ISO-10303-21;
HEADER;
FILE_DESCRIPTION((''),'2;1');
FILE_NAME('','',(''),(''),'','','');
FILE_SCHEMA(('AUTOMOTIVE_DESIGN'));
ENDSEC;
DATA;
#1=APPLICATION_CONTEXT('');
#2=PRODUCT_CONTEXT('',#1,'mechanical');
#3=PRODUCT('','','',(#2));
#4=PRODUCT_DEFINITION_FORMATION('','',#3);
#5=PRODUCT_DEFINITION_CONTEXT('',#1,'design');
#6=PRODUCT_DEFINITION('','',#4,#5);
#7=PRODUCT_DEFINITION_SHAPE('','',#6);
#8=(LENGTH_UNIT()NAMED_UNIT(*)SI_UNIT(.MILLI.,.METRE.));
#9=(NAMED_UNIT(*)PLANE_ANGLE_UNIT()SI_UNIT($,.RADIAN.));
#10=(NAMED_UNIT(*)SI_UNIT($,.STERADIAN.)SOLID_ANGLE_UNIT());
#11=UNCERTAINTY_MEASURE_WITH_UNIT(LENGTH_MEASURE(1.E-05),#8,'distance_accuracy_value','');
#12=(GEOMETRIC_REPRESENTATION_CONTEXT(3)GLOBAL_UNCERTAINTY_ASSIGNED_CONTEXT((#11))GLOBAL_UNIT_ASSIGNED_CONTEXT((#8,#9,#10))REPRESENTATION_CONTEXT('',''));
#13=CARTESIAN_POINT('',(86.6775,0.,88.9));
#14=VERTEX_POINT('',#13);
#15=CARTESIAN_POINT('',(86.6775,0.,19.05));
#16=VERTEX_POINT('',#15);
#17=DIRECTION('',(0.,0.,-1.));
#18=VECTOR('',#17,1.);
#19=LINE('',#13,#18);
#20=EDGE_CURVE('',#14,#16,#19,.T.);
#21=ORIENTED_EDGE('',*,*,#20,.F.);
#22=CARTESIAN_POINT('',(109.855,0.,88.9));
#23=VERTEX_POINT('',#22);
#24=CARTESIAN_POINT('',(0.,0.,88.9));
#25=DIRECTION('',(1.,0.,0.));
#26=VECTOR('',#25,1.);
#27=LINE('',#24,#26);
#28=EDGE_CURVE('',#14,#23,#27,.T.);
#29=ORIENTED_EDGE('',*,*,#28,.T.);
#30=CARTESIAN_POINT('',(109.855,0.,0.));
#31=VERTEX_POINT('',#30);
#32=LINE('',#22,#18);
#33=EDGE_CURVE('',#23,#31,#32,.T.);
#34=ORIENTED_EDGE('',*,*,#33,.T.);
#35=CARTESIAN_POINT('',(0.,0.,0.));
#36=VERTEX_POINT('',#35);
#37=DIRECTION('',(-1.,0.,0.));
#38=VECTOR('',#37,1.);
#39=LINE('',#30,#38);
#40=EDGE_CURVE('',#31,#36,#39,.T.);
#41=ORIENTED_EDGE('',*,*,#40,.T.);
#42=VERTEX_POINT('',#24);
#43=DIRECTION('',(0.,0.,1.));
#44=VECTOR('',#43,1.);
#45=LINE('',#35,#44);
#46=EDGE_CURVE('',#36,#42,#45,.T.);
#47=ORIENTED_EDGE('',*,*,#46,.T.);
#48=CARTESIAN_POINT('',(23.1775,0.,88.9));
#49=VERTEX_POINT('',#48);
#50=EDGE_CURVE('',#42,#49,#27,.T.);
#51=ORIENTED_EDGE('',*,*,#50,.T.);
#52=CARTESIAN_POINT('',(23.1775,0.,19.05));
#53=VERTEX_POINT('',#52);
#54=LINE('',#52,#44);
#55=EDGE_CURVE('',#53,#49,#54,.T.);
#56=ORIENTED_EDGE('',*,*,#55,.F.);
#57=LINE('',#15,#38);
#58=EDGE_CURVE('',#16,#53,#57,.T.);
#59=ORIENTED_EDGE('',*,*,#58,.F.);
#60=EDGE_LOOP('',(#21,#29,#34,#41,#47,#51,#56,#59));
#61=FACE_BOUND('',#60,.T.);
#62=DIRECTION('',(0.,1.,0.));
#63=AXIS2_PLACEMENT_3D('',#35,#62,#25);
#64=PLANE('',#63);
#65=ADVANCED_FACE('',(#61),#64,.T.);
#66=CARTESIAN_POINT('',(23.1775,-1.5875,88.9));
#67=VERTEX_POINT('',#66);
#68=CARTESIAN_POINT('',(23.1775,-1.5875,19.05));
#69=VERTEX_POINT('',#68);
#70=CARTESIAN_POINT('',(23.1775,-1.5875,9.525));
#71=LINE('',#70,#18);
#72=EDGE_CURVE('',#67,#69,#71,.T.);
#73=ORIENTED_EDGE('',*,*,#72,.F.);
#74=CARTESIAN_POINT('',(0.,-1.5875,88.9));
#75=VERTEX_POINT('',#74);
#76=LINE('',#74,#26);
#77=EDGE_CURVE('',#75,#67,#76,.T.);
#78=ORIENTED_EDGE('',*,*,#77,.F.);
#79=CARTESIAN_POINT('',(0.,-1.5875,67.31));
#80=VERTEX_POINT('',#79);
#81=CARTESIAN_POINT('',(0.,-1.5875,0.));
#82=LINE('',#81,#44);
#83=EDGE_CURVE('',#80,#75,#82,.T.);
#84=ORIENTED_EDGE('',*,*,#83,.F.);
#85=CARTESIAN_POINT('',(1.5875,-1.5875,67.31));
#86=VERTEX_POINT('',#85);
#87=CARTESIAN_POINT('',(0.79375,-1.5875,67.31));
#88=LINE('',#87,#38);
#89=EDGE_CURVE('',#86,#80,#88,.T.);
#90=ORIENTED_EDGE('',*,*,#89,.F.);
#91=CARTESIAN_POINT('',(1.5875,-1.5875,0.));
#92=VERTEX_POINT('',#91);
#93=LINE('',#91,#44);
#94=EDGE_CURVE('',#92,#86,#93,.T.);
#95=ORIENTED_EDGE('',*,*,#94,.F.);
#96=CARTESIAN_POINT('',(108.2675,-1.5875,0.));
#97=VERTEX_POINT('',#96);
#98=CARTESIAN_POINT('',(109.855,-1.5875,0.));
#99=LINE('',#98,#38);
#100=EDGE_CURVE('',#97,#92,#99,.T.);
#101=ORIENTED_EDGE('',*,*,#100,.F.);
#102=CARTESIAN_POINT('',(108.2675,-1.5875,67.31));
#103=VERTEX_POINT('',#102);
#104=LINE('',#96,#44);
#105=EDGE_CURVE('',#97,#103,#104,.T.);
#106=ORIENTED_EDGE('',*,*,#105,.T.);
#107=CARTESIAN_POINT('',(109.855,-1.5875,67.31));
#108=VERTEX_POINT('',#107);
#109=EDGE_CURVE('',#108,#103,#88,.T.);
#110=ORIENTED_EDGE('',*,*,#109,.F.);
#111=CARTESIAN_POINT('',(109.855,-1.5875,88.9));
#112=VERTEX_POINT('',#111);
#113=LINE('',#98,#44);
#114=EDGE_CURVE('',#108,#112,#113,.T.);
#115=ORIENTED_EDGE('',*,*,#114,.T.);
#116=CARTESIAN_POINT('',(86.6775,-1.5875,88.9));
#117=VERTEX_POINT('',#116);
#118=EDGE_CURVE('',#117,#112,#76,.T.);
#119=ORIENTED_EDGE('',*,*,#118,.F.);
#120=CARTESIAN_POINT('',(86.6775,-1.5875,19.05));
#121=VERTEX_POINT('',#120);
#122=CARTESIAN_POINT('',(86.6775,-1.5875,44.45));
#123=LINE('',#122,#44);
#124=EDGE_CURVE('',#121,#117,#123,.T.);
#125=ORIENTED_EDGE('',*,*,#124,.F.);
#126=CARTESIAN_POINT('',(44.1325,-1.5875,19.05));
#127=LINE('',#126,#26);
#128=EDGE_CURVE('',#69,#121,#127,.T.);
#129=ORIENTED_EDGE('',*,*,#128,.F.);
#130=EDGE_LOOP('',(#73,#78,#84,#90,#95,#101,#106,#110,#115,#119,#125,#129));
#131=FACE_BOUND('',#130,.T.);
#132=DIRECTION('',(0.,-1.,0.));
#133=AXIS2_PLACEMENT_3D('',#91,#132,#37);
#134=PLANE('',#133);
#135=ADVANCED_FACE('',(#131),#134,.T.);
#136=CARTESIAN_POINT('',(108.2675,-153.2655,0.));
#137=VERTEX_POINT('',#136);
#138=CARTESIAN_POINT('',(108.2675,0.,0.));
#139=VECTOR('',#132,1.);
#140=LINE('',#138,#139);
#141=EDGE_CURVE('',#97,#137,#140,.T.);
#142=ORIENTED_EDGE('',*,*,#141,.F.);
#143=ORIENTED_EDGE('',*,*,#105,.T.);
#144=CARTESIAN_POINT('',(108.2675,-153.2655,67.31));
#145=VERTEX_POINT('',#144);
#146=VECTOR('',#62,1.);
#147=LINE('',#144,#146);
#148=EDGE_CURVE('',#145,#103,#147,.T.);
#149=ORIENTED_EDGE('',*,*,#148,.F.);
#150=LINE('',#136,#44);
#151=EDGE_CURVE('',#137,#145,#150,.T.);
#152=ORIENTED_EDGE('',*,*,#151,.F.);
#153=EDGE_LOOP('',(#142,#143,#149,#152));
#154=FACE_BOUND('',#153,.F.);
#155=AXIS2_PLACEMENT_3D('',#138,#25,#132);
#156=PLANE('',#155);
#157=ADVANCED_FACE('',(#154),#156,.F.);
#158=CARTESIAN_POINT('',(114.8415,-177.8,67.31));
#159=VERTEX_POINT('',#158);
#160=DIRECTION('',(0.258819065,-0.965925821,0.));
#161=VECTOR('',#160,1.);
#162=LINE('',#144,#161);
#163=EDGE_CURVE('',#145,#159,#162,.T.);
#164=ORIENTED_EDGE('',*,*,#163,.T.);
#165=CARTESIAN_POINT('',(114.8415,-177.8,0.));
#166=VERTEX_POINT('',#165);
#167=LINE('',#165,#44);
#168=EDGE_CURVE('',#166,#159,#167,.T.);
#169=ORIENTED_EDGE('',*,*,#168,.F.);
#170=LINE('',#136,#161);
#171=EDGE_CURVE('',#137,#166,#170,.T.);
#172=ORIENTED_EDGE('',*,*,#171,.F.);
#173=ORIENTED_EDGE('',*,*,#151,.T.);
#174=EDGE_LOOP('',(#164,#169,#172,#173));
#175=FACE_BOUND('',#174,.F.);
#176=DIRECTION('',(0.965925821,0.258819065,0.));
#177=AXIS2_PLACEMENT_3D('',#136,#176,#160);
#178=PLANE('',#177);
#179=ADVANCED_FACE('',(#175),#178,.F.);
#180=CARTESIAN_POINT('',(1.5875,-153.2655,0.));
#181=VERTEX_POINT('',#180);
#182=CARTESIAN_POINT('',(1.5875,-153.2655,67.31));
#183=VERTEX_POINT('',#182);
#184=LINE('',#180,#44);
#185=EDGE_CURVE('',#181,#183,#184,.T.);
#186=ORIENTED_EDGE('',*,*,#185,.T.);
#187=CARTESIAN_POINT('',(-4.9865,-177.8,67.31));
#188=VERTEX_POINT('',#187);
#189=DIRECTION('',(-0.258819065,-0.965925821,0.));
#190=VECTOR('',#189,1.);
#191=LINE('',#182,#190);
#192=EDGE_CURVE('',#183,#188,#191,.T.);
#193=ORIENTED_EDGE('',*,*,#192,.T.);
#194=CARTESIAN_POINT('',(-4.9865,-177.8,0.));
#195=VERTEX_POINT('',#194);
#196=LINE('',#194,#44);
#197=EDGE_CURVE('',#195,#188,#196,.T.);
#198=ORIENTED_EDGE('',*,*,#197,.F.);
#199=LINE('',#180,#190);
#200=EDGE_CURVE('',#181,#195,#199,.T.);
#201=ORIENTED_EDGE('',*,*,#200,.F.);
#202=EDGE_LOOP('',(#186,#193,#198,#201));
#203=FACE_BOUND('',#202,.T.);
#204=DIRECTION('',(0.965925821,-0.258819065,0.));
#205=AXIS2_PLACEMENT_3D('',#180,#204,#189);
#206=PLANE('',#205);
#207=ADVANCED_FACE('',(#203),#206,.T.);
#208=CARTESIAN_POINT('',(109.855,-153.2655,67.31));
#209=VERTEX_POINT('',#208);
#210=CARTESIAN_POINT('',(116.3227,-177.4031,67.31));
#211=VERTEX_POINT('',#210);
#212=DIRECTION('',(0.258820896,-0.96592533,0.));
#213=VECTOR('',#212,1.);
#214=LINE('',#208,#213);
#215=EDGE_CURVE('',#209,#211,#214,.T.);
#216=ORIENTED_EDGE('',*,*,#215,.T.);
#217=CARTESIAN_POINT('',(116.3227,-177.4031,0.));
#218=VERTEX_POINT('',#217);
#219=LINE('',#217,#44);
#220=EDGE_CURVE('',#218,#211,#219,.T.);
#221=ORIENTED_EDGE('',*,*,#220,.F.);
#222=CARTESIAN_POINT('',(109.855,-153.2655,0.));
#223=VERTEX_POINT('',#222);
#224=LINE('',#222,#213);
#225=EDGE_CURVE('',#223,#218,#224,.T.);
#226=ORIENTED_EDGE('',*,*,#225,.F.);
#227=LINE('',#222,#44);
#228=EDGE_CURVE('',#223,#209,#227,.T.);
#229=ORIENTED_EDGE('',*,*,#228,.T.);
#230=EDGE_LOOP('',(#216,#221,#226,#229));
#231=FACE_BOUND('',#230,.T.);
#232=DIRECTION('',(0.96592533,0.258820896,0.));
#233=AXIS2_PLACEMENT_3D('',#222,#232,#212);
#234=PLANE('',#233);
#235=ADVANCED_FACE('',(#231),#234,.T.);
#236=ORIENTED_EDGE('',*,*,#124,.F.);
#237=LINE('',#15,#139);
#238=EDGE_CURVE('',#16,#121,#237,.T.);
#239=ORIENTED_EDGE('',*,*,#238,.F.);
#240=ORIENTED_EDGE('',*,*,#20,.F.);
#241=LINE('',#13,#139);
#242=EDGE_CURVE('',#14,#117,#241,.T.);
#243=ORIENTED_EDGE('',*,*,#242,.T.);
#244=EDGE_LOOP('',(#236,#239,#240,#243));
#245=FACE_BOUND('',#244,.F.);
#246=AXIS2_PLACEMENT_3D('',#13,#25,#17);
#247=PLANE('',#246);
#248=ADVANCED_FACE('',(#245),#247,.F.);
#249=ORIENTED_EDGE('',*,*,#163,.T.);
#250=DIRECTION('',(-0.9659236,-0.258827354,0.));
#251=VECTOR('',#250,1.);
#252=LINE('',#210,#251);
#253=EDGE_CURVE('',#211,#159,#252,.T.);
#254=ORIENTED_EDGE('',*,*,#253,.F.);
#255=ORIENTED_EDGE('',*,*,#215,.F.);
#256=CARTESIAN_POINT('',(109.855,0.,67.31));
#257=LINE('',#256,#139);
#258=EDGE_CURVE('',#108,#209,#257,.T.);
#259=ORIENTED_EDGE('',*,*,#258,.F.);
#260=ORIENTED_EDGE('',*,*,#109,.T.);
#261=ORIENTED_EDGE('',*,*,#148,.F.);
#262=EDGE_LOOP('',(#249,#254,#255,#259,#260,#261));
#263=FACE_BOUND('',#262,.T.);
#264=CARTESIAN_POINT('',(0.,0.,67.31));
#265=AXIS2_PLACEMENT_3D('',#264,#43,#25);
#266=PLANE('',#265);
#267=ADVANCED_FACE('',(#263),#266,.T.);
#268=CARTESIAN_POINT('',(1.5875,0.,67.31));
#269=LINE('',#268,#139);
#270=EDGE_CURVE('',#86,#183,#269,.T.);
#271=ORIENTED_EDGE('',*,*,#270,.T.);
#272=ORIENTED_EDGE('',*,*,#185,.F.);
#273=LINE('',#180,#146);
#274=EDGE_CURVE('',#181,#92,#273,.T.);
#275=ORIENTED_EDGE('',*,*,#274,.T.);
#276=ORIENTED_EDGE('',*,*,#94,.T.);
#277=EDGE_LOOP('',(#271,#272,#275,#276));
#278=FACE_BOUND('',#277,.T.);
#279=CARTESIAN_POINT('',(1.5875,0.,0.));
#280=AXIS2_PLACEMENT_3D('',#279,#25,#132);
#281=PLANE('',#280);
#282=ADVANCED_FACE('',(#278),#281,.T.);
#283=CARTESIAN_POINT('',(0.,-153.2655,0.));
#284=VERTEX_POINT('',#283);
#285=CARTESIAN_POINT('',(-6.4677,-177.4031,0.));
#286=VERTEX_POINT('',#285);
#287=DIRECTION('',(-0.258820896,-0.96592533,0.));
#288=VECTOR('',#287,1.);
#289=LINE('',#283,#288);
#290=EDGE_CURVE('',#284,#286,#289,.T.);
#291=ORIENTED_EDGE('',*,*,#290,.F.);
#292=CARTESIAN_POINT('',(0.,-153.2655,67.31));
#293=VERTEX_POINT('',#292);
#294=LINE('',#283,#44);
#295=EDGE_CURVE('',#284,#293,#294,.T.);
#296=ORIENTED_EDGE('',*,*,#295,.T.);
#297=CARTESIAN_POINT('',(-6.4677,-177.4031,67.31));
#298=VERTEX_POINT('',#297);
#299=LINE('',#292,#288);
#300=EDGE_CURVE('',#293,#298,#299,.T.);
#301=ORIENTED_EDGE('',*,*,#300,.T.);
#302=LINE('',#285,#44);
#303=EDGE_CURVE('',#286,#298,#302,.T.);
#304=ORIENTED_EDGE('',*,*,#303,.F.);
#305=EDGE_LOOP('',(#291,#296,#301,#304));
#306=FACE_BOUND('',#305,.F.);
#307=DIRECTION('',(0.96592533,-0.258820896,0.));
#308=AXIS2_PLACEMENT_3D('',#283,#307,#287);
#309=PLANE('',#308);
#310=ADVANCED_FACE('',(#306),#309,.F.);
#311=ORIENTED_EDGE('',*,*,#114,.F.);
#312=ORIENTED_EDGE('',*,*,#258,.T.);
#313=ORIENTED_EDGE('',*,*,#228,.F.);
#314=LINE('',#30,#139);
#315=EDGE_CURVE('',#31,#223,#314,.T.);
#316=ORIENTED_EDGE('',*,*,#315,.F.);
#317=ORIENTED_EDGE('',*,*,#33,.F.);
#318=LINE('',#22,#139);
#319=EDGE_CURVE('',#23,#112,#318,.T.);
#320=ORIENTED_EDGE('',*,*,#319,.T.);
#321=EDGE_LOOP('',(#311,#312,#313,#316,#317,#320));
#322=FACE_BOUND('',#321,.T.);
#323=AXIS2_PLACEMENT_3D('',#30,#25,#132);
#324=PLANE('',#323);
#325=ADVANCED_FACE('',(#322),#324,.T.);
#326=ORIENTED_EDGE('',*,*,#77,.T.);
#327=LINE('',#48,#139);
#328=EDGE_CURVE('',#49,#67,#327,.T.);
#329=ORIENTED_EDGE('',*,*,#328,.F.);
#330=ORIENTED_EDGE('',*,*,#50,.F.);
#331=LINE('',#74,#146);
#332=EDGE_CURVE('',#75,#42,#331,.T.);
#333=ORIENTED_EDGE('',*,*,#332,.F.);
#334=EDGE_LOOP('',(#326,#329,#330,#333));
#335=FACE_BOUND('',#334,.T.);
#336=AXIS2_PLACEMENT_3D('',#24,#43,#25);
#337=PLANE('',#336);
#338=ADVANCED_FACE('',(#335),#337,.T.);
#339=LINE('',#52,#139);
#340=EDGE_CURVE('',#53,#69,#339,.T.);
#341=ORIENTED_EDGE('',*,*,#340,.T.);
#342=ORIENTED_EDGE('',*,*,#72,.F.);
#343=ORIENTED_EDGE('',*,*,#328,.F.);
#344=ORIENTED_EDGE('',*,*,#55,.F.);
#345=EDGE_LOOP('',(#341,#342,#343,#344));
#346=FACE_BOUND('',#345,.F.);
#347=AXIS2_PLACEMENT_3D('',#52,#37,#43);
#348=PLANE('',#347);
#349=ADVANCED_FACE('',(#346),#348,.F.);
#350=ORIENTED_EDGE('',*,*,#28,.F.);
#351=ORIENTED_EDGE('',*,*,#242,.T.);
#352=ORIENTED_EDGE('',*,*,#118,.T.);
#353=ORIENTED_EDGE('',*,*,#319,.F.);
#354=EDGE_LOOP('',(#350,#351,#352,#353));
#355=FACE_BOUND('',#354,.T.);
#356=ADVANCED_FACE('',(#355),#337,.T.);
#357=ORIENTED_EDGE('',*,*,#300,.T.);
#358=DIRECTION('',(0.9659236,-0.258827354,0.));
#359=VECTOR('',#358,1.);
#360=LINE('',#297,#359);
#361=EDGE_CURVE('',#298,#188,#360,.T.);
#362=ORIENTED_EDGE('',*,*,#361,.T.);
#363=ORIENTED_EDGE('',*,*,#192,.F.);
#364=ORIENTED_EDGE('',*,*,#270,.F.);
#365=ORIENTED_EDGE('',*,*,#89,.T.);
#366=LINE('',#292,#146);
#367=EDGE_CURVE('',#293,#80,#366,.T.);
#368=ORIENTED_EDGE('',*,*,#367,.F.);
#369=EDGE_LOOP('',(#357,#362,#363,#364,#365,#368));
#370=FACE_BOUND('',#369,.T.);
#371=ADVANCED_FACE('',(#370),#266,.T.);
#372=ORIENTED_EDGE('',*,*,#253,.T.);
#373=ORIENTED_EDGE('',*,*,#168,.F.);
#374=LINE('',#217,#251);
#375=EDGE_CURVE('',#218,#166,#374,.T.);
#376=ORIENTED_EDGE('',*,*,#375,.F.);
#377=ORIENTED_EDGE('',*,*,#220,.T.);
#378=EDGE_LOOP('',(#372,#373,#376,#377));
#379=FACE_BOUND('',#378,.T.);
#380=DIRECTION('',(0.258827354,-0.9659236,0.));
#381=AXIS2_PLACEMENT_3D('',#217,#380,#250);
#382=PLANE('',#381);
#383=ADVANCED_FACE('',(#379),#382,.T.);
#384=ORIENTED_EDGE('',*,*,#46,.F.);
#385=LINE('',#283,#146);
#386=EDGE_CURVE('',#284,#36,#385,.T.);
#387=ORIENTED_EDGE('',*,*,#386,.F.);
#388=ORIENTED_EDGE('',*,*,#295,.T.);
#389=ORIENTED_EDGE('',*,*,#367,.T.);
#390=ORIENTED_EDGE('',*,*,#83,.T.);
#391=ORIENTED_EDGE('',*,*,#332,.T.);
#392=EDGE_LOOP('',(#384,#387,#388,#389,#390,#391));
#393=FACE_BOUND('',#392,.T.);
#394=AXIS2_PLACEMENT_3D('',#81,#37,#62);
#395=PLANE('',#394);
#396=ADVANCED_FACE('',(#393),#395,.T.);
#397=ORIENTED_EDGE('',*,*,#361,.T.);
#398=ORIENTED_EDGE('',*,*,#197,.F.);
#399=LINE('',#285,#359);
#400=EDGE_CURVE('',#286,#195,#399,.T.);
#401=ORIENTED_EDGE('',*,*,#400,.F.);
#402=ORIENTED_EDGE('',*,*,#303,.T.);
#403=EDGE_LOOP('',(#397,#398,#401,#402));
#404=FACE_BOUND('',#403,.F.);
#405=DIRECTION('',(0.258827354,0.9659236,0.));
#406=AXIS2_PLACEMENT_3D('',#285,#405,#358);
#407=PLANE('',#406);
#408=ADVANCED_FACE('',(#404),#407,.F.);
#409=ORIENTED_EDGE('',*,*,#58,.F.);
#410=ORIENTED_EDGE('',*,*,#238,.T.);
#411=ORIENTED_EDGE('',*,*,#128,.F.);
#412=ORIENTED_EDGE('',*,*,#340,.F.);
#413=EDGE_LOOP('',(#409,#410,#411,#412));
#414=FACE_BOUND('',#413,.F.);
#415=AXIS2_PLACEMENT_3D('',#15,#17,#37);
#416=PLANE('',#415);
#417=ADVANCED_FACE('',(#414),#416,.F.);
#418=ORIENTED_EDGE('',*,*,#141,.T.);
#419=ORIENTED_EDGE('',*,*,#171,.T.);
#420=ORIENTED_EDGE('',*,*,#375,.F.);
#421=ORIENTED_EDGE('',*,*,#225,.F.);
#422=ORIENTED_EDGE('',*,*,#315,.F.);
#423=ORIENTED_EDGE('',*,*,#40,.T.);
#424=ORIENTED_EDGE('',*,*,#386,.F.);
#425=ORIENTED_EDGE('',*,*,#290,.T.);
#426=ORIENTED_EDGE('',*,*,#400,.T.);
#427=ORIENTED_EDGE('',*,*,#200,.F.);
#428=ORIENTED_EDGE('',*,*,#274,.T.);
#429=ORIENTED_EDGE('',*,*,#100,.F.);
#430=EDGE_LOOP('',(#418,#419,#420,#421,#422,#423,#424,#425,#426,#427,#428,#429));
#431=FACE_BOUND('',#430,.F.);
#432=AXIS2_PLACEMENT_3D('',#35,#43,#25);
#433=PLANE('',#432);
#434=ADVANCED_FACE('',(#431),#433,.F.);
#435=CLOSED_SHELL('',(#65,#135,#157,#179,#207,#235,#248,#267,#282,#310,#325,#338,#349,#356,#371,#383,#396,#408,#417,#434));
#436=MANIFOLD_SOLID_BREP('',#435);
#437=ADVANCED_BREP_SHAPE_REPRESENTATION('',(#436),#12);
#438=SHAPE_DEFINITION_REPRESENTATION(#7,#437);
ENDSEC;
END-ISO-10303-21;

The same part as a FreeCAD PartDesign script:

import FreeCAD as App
import Part
import Sketcher
from FreeCAD import Vector
Q = App.Units.Quantity

doc = App.newDocument("Part")
body = doc.addObject("PartDesign::Body", "Body")

# Sketch on XY plane
sketch1 = body.newObject("Sketcher::SketchObject", "Sketch")
sketch1.AttachmentSupport = (doc.getObject("XY_Plane"), [""])
sketch1.MapMode = "FlatFace"
sketch1.addGeometry([
    Part.LineSegment(Vector(0, 0, 0), Vector(0, -1.6, 0)),
    Part.LineSegment(Vector(0, -1.6, 0), Vector(109.9, -1.6, 0)),
    Part.LineSegment(Vector(109.9, -1.6, 0), Vector(109.9, 0, 0)),
    Part.LineSegment(Vector(109.9, 0, 0), Vector(0, 0, 0)),
], False)
sketch1.addConstraint([
    Sketcher.Constraint("Coincident", 0, 2, 1, 1),
    Sketcher.Constraint("Coincident", 1, 2, 2, 1),
    Sketcher.Constraint("Coincident", 2, 2, 3, 1),
    Sketcher.Constraint("Coincident", 3, 2, 0, 1),
    Sketcher.Constraint("Vertical", 0),
    Sketcher.Constraint("Horizontal", 1),
    Sketcher.Constraint("Vertical", 2),
    Sketcher.Constraint("Horizontal", 3),
    Sketcher.Constraint("Coincident", 3, 2, -1, 1),
    Sketcher.Constraint("DistanceY", 0, 2, 0, 1, Q("0.0625 in")),
    Sketcher.Constraint("DistanceX", 1, 1, 1, 2, Q("4.325 in")),
])
pad1 = body.newObject("PartDesign::Pad", "Pad")
pad1.Profile = sketch1
pad1.Length = Q("3.5 in")

# Sketch on XY plane
sketch2 = body.newObject("Sketcher::SketchObject", "Sketch001")
sketch2.AttachmentSupport = (doc.getObject("XY_Plane"), [""])
sketch2.MapMode = "FlatFace"
sketch2.addGeometry([
    Part.LineSegment(Vector(1.6, 0, 0), Vector(0, 0, 0)),  # 0
    Part.LineSegment(Vector(0, 0, 0), Vector(0, -153.3, 0)),  # 1
    Part.LineSegment(Vector(0, -153.3, 0), Vector(-6.5, -177.4, 0)),  # 2
    Part.LineSegment(Vector(-6.5, -177.4, 0), Vector(-5, -177.8, 0)),  # 3
    Part.LineSegment(Vector(-5, -177.8, 0), Vector(1.6, -153.3, 0)),  # 4
    Part.LineSegment(Vector(1.6, -153.3, 0), Vector(1.6, 0, 0)),  # 5
    Part.LineSegment(Vector(109.9, 0, 0), Vector(108.3, 0, 0)),  # 6
    Part.LineSegment(Vector(108.3, 0, 0), Vector(108.3, -153.3, 0)),  # 7
    Part.LineSegment(Vector(108.3, -153.3, 0), Vector(114.8, -177.8, 0)),  # 8
    Part.LineSegment(Vector(114.8, -177.8, 0), Vector(116.3, -177.4, 0)),  # 9
    Part.LineSegment(Vector(116.3, -177.4, 0), Vector(109.9, -153.3, 0)),  # 10
    Part.LineSegment(Vector(109.9, -153.3, 0), Vector(109.9, 0, 0)),  # 11
], False)
sketch2.addConstraint([
    Sketcher.Constraint("Coincident", 0, 2, 1, 1),
    Sketcher.Constraint("Coincident", 1, 2, 2, 1),
    Sketcher.Constraint("Coincident", 2, 2, 3, 1),
    Sketcher.Constraint("Coincident", 3, 2, 4, 1),
    Sketcher.Constraint("Coincident", 4, 2, 5, 1),
    Sketcher.Constraint("Coincident", 5, 2, 0, 1),
    Sketcher.Constraint("Coincident", 6, 2, 7, 1),
    Sketcher.Constraint("Coincident", 7, 2, 8, 1),
    Sketcher.Constraint("Coincident", 8, 2, 9, 1),
    Sketcher.Constraint("Coincident", 9, 2, 10, 1),
    Sketcher.Constraint("Coincident", 10, 2, 11, 1),
    Sketcher.Constraint("Coincident", 11, 2, 6, 1),
    Sketcher.Constraint("Horizontal", 0),
    Sketcher.Constraint("Vertical", 1),
    Sketcher.Constraint("Vertical", 5),
    Sketcher.Constraint("Horizontal", 6),
    Sketcher.Constraint("Vertical", 7),
    Sketcher.Constraint("Vertical", 11),
    Sketcher.Constraint("Coincident", 0, 2, -1, 1),
    Sketcher.Constraint("PointOnObject", 6, 2, -1),
    Sketcher.Constraint("Perpendicular", 2, 3),
    Sketcher.Constraint("Perpendicular", 3, 4),
    Sketcher.Constraint("Perpendicular", 8, 9),
    Sketcher.Constraint("Perpendicular", 9, 10),
    Sketcher.Constraint("Horizontal", 1, 2, 4, 2),
    Sketcher.Constraint("Horizontal", 4, 2, 7, 2),
    Sketcher.Constraint("Horizontal", 3, 2, 8, 2),
    Sketcher.Constraint("Horizontal", 2, 2, 9, 2),
    Sketcher.Constraint("Horizontal", 7, 2, 10, 2),
    Sketcher.Constraint("Equal", 0, 6),
    Sketcher.Constraint("Distance", 4, Q("1 in")),
    Sketcher.Constraint("DistanceY", 3, 2, -1, 1, Q("7 in")),
    Sketcher.Constraint("Angle", 4, Q("75 deg")),
    Sketcher.Constraint("DistanceX", 5, 2, 6, 2, Q("4.2 in")),
    Sketcher.Constraint("DistanceX", 0, 2, 0, 1, Q("0.0625 in")),
])
pad2 = body.newObject("PartDesign::Pad", "Pad001")
pad2.Profile = sketch2
pad2.Length = Q("2.65 in")

# Sketch on XZ plane
sketch3 = body.newObject("Sketcher::SketchObject", "Sketch002")
sketch3.AttachmentSupport = (doc.getObject("XZ_Plane"), [""])
sketch3.MapMode = "FlatFace"
sketch3.addGeometry([
    Part.LineSegment(Vector(23, 19, 0), Vector(23, 89, 0)),
    Part.LineSegment(Vector(23, 89, 0), Vector(87, 89, 0)),
    Part.LineSegment(Vector(87, 89, 0), Vector(87, 19, 0)),
    Part.LineSegment(Vector(87, 19, 0), Vector(23, 19, 0)),
], False)
sketch3.addConstraint([
    Sketcher.Constraint("Coincident", 0, 2, 1, 1),
    Sketcher.Constraint("Coincident", 1, 2, 2, 1),
    Sketcher.Constraint("Coincident", 2, 2, 3, 1),
    Sketcher.Constraint("Coincident", 3, 2, 0, 1),
    Sketcher.Constraint("Vertical", 0),
    Sketcher.Constraint("Horizontal", 1),
    Sketcher.Constraint("Vertical", 2),
    Sketcher.Constraint("Horizontal", 3),
    Sketcher.Constraint("DistanceX", 1, 1, 1, 2, Q("2.5 in")),
    Sketcher.Constraint("DistanceY", -1, 1, 2, 2, Q("0.75 in")),
    Sketcher.Constraint("DistanceY", 0, 1, 0, 2, Q("2.75 in")),
    Sketcher.Constraint("DistanceX", -1, 1, 0, 2, Q("0.9125 in")),
])
pocket1 = body.newObject("PartDesign::Pocket", "Pocket")
pocket1.Profile = sketch3
pocket1.Type = "ThroughAll"
pocket1.Reversed = True

doc.recompute()
